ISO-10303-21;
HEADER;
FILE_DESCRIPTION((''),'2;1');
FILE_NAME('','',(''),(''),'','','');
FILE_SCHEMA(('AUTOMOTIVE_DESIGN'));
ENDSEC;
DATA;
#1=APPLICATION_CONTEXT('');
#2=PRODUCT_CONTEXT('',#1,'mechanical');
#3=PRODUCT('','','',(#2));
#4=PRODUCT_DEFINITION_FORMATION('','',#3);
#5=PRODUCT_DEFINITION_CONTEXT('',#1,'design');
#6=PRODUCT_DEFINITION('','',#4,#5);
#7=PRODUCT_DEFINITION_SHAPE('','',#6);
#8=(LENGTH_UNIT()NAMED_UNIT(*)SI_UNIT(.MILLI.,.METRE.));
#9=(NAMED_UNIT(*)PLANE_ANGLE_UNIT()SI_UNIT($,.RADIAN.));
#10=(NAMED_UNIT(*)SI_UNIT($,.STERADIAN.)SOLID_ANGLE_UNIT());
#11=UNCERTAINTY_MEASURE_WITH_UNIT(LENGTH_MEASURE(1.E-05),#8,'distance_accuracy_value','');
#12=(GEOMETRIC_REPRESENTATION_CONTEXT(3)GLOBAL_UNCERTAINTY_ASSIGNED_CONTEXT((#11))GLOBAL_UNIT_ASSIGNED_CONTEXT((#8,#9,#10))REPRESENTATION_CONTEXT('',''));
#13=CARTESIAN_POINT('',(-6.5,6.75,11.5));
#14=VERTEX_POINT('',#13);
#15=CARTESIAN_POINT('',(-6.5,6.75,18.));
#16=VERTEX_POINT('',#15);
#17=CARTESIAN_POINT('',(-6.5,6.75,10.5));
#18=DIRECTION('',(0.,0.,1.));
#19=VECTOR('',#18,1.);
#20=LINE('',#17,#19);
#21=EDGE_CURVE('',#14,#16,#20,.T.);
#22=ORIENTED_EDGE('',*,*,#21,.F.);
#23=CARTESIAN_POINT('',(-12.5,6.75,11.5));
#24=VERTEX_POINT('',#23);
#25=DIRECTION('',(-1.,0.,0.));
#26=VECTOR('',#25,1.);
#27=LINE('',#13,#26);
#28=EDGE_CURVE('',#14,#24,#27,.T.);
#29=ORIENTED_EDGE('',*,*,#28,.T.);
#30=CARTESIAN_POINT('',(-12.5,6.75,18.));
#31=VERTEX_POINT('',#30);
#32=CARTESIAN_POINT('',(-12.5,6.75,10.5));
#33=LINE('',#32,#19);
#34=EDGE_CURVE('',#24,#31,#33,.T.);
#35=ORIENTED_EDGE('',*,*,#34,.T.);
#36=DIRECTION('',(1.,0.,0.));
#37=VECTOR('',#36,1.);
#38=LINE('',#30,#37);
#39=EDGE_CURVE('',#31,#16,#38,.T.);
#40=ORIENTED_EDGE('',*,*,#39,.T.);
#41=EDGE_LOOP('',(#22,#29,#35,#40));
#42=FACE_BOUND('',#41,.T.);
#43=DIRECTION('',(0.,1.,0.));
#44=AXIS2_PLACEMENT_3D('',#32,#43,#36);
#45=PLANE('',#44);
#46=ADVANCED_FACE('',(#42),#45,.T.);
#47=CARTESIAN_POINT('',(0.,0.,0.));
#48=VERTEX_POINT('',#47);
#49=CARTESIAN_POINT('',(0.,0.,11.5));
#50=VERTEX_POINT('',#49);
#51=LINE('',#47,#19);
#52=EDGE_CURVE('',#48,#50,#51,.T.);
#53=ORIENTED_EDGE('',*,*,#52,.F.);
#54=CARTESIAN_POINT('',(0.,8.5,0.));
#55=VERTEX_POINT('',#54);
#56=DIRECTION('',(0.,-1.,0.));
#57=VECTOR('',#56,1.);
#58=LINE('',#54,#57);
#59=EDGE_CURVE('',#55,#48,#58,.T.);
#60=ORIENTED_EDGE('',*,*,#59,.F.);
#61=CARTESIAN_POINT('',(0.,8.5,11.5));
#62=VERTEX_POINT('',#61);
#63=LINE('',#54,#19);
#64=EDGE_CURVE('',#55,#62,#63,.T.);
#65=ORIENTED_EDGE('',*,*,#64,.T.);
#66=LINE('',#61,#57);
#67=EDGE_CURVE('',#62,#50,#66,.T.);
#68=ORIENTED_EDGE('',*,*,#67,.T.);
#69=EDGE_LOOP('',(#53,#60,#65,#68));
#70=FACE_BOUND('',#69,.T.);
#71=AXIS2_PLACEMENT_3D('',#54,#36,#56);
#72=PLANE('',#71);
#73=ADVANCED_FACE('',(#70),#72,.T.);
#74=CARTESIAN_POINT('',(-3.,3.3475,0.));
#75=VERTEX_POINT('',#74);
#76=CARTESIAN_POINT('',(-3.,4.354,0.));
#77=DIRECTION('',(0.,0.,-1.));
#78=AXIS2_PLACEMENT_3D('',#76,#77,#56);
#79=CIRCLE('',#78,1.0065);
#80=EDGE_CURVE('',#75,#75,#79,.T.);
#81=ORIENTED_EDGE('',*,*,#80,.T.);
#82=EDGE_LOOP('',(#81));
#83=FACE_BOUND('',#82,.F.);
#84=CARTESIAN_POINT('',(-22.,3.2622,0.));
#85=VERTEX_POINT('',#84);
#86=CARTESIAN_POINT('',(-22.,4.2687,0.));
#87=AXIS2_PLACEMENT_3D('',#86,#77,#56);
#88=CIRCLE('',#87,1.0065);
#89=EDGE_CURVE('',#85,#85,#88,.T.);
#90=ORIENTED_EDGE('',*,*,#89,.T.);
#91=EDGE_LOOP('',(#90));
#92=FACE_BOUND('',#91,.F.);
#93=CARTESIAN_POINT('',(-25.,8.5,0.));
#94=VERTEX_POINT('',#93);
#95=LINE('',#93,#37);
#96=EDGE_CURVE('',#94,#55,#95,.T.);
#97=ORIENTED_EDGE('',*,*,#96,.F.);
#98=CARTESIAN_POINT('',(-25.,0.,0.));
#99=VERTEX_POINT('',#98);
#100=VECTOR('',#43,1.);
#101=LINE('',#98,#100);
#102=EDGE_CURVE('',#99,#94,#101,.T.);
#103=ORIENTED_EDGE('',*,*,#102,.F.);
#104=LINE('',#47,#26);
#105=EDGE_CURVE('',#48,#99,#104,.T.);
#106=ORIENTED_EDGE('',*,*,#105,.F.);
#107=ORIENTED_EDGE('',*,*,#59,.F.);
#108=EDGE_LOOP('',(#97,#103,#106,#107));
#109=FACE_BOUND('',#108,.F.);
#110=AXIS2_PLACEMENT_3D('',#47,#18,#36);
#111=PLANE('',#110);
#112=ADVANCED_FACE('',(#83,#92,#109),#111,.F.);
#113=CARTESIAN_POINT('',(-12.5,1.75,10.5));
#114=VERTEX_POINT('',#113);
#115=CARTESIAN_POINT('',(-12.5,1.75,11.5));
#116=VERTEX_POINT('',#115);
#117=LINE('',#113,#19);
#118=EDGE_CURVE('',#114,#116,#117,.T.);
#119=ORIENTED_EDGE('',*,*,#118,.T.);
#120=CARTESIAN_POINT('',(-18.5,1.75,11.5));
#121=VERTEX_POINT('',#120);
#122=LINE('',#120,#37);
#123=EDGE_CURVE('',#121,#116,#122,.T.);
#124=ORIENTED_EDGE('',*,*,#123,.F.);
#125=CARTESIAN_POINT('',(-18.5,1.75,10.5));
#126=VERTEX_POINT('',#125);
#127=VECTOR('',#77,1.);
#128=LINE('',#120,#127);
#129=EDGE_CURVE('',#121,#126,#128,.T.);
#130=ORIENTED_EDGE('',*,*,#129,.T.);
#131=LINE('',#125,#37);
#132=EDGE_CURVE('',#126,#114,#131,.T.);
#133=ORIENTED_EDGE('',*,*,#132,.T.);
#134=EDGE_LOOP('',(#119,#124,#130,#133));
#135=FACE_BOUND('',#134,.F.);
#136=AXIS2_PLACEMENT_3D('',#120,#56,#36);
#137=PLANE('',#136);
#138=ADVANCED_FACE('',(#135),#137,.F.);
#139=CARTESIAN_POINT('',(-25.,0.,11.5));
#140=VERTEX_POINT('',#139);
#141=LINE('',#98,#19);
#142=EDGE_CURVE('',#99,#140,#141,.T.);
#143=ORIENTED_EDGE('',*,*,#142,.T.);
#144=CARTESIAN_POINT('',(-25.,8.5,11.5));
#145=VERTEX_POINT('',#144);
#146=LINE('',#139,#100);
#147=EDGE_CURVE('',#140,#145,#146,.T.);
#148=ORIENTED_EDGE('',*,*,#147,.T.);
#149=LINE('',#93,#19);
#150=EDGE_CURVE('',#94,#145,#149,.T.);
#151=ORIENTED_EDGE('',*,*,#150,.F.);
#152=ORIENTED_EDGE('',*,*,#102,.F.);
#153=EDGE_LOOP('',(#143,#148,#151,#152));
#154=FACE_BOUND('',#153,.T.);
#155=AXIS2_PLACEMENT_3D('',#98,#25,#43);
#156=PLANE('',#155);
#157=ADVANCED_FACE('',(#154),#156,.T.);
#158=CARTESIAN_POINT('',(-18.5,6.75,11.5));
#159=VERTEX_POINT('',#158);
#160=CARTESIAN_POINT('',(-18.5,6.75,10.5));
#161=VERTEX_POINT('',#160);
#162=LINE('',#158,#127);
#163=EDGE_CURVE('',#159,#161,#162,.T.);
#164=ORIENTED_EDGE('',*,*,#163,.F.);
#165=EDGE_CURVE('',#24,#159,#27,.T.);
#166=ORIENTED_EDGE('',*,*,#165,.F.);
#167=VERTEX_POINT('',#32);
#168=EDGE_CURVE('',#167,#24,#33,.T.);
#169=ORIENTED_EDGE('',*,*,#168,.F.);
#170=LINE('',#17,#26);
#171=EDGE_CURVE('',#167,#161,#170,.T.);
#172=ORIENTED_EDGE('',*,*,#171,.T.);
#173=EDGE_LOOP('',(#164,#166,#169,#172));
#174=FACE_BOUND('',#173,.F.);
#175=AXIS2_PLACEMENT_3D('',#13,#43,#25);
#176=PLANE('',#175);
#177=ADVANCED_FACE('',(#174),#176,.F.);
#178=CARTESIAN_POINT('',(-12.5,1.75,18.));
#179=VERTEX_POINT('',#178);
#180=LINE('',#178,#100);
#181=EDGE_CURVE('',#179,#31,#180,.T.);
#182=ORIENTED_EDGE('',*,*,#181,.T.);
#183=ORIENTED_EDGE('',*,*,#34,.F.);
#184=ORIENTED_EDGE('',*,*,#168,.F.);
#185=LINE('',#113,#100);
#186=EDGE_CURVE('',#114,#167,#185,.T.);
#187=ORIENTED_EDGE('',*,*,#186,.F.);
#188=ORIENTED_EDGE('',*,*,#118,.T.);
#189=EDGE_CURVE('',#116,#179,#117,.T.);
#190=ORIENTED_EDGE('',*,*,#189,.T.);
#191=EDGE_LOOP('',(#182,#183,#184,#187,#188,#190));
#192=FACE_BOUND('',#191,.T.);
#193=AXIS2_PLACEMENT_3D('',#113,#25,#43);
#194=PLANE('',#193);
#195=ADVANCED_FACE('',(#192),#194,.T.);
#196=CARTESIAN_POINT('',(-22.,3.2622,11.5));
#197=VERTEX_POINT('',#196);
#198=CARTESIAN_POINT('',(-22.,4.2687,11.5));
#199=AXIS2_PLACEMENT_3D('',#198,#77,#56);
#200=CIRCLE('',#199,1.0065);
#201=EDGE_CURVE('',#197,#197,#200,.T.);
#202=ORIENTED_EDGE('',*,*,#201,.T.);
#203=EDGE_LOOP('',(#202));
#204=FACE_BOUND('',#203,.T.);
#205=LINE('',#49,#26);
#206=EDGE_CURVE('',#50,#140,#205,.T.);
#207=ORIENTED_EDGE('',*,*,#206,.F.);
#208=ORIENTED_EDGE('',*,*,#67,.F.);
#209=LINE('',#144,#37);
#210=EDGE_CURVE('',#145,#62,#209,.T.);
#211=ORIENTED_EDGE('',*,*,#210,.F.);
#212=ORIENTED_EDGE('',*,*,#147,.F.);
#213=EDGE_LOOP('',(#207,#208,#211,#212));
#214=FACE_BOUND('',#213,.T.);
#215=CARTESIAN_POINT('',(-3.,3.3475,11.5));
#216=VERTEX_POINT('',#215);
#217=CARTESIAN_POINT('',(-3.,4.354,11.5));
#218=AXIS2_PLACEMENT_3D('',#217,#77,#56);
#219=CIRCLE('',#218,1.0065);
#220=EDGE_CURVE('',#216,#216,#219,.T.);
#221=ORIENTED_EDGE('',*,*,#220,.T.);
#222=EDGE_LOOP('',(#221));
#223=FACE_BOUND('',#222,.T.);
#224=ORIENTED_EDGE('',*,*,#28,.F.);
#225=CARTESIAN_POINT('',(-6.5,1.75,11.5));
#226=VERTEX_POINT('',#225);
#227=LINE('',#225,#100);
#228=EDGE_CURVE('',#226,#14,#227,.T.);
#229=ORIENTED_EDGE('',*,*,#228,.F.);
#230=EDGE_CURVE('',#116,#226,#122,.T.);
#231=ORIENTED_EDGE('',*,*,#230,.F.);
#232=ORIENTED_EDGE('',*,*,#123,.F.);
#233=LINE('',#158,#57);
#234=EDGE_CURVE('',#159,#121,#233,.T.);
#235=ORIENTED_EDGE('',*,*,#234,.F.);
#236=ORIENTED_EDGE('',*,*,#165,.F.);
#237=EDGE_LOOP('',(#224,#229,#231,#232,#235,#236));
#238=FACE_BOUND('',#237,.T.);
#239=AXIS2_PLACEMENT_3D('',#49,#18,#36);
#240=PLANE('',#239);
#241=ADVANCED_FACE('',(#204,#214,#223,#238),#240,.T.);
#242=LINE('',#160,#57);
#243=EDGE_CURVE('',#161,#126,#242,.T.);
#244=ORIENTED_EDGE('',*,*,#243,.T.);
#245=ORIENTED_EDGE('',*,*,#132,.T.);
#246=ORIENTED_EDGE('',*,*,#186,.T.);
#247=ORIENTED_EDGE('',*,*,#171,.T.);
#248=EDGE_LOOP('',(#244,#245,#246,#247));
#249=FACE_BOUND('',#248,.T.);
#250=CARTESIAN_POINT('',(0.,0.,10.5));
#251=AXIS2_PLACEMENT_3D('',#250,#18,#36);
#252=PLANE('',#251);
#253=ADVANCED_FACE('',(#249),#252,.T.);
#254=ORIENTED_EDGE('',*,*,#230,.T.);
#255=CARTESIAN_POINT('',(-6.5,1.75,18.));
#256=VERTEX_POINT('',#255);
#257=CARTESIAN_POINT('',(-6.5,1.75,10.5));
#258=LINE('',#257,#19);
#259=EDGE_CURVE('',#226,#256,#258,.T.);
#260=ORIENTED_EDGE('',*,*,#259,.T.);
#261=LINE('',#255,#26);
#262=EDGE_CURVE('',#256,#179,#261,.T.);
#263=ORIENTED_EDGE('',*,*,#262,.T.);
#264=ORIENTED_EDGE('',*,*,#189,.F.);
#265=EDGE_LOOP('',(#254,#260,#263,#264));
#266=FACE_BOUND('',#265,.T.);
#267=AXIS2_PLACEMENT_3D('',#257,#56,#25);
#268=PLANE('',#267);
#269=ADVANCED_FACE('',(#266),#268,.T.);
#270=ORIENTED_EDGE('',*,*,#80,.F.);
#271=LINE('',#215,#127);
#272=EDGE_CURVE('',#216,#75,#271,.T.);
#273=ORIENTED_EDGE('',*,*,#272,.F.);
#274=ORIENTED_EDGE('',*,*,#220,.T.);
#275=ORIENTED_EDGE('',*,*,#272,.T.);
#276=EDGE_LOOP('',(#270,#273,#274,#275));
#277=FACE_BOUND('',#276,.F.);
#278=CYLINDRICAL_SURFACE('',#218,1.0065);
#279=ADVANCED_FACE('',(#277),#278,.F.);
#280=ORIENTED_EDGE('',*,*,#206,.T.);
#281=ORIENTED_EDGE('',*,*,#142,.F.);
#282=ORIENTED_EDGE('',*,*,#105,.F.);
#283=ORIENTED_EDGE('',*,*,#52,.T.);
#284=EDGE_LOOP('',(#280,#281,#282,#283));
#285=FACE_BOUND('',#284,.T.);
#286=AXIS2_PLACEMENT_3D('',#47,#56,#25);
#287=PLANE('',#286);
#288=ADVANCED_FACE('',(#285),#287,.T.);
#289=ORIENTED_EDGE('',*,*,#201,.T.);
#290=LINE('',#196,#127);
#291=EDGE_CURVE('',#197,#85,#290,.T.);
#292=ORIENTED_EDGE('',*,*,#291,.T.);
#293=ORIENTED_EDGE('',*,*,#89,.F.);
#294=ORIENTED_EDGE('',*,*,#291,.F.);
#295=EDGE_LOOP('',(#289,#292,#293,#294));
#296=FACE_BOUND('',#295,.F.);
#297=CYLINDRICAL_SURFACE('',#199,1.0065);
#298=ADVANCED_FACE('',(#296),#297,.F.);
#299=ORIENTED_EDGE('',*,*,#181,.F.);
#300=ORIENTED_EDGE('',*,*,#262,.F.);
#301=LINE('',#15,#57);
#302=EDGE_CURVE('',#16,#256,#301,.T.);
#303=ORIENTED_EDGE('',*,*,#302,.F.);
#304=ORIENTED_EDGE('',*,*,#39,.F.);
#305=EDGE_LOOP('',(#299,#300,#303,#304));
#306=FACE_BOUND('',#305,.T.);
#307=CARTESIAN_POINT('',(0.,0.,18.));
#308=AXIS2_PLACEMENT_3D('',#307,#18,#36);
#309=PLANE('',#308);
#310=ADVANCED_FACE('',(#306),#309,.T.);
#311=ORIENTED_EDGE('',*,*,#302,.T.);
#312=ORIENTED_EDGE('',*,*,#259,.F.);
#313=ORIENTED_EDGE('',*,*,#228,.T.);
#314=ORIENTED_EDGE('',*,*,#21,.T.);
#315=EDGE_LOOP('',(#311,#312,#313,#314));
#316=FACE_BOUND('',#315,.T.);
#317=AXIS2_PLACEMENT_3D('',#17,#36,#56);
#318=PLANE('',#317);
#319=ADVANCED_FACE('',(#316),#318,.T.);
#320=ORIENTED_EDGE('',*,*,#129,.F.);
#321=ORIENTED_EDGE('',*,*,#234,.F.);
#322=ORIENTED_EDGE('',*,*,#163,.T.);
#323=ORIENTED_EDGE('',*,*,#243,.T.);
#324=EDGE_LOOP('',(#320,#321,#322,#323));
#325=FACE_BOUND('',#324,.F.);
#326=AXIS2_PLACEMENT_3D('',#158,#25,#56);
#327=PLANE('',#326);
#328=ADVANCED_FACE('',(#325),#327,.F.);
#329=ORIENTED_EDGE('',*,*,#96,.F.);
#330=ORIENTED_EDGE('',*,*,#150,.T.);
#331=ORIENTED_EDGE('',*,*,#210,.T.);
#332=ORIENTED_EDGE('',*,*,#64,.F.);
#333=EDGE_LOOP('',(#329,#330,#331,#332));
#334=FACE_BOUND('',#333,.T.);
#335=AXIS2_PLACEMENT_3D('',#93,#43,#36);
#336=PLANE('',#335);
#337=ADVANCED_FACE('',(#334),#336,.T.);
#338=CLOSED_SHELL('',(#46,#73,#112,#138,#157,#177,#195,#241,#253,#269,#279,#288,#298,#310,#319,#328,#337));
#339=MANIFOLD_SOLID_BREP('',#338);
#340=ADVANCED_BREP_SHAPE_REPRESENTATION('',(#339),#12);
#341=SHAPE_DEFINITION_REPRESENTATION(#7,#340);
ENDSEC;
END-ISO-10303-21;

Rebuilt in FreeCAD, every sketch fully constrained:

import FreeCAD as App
import Part
import Sketcher

V = App.Vector


def add_polygon(sketch, points):
    """Adds a closed chain of lines whose ends are joined by coincident constraints."""
    first, n = sketch.GeometryCount, len(points)
    for a, b in zip(points, points[1:] + points[:1]):
        sketch.addGeometry(Part.LineSegment(App.Vector(*a, 0), App.Vector(*b, 0)), False)
    for i in range(n):
        sketch.addConstraint(Sketcher.Constraint("Coincident", first + i, 2, first + (i + 1) % n, 1))

doc = App.newDocument("Part")
body = doc.addObject("PartDesign::Body", "Body")

sketch1 = body.newObject("Sketcher::SketchObject", "Sketch")
sketch1.AttachmentSupport = (doc.getObject("XY_Plane"), [""])
sketch1.MapMode = "FlatFace"
add_polygon(sketch1, [(-25, 0), (0, 0), (0, 8), (-25, 8)])
sketch1.addConstraint([
    Sketcher.Constraint("Horizontal", 0),
    Sketcher.Constraint("Vertical", 1),
    Sketcher.Constraint("Horizontal", 2),
    Sketcher.Constraint("Vertical", 3),
    Sketcher.Constraint("Coincident", 0, 2, -1, 1),
    Sketcher.Constraint("DistanceX", 0, 1, 0, 2, 25.0),
    Sketcher.Constraint("DistanceY", 1, 1, 1, 2, 8.5),
])
pad1 = body.newObject("PartDesign::Pad", "Pad")
pad1.Profile = sketch1
pad1.Length = 11.5

sketch2 = body.newObject("Sketcher::SketchObject", "Sketch001")
sketch2.AttachmentSupport = (doc.getObject("XY_Plane"), [""])
sketch2.MapMode = "FlatFace"
sketch2.AttachmentOffset = App.Placement(V(0, 0, 11.5), App.Rotation())
add_polygon(sketch2, [(-18, 7), (-18, 2), (-6, 2), (-6, 7)])
sketch2.addConstraint([
    Sketcher.Constraint("Vertical", 0),
    Sketcher.Constraint("Horizontal", 1),
    Sketcher.Constraint("Vertical", 2),
    Sketcher.Constraint("Horizontal", 3),
    Sketcher.Constraint("DistanceX", 1, 1, 1, 2, 12.0),
    Sketcher.Constraint("DistanceY", 0, 2, 0, 1, 5.0),
    Sketcher.Constraint("DistanceX", 0, 2, -1, 1, 18.5),
    Sketcher.Constraint("DistanceY", -1, 1, 0, 2, 1.75),
])
pocket1 = body.newObject("PartDesign::Pocket", "Pocket")
pocket1.Profile = sketch2
pocket1.Length = 1

sketch3 = body.newObject("Sketcher::SketchObject", "Sketch002")
sketch3.AttachmentSupport = (doc.getObject("XY_Plane"), [""])
sketch3.MapMode = "FlatFace"
sketch3.AttachmentOffset = App.Placement(V(0, 0, 10.5), App.Rotation())
add_polygon(sketch3, [(-12, 2), (-6, 2), (-6, 7), (-12, 7)])
sketch3.addConstraint([
    Sketcher.Constraint("Horizontal", 0),
    Sketcher.Constraint("Vertical", 1),
    Sketcher.Constraint("Horizontal", 2),
    Sketcher.Constraint("Vertical", 3),
    Sketcher.Constraint("DistanceX", 0, 1, 0, 2, 6.0),
    Sketcher.Constraint("DistanceY", 1, 1, 1, 2, 5.0),
    Sketcher.Constraint("DistanceX", 0, 2, -1, 1, 6.5),
    Sketcher.Constraint("DistanceY", -1, 1, 0, 2, 1.75),
])
pad2 = body.newObject("PartDesign::Pad", "Pad001")
pad2.Profile = sketch3
pad2.Length = 7.5

sketch4 = body.newObject("Sketcher::SketchObject", "Sketch003")
sketch4.AttachmentSupport = (doc.getObject("XY_Plane"), [""])
sketch4.MapMode = "FlatFace"
sketch4.AttachmentOffset = App.Placement(V(0, 0, 11.5), App.Rotation())
sketch4.addGeometry(Part.Circle(V(-3, 4.4, 0), V(0, 0, 1), 1), False)
sketch4.addConstraint([
    Sketcher.Constraint("Diameter", 0, 2.013),
    Sketcher.Constraint("DistanceX", 0, 3, -1, 1, 3.0),
    Sketcher.Constraint("DistanceY", -1, 1, 0, 3, 4.354),
])
doc.recompute()
hole = body.newObject("PartDesign::Hole", "Hole")
hole.Profile = sketch4
hole.ThreadType = "None"
hole.Diameter = 2.013
hole.DepthType = "ThroughAll"

sketch5 = body.newObject("Sketcher::SketchObject", "Sketch004")
sketch5.AttachmentSupport = (doc.getObject("XY_Plane"), [""])
sketch5.MapMode = "FlatFace"
sketch5.AttachmentOffset = App.Placement(V(0, 0, 11.5), App.Rotation())
sketch5.addGeometry(Part.Circle(V(-22, 4.3, 0), V(0, 0, 1), 1), False)
sketch5.addConstraint([
    Sketcher.Constraint("Diameter", 0, 2.013),
    Sketcher.Constraint("DistanceX", 0, 3, -1, 1, 22.0),
    Sketcher.Constraint("DistanceY", -1, 1, 0, 3, 4.2687),
])
doc.recompute()
hole2 = body.newObject("PartDesign::Hole", "Hole001")
hole2.Profile = sketch5
hole2.ThreadType = "None"
hole2.Diameter = 2.013
hole2.DepthType = "ThroughAll"

doc.recompute()
